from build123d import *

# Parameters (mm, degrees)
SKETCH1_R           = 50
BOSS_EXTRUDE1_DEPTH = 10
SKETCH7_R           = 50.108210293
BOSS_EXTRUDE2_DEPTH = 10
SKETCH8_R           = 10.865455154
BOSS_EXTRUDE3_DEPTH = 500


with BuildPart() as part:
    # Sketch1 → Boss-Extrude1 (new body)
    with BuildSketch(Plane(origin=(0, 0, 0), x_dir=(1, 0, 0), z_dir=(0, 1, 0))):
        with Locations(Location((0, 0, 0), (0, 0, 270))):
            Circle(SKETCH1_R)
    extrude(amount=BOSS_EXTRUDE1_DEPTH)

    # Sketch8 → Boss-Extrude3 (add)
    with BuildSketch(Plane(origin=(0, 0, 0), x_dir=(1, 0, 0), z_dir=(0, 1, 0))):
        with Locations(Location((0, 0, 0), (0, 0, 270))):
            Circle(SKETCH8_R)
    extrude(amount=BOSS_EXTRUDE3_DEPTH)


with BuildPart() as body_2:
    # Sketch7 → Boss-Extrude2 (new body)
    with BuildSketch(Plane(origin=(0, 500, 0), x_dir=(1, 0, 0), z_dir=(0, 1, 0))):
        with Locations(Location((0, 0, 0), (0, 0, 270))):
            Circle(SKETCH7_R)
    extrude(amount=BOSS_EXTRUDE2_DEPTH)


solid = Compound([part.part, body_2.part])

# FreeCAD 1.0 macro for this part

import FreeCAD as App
import Part
import Sketcher
from FreeCAD import Vector

doc = App.newDocument("Part")
body = doc.addObject("PartDesign::Body", "Body")

# Sketch on XZ plane
sketch1 = doc.addObject("Sketcher::SketchObject", "Sketch")
body.addObject(sketch1)
sketch1.AttachmentSupport = (doc.XZ_Plane, [""])
sketch1.MapMode = "FlatFace"
sketch1.addGeometry(Part.Circle(Vector(0, 0, 0), Vector(0, 0, 1), 50), False)
sketch1.addConstraint([
    Sketcher.Constraint("Coincident", 0, 3, -1, 1),
    Sketcher.Constraint("Diameter", 0, 100.0),
])
pad1 = doc.addObject("PartDesign::Pad", "Pad")
body.addObject(pad1)
pad1.Profile = sketch1
pad1.Length = 10
pad1.Reversed = True

# Sketch on XZ plane
sketch2 = doc.addObject("Sketcher::SketchObject", "Sketch001")
body.addObject(sketch2)
sketch2.AttachmentSupport = (doc.XZ_Plane, [""])
sketch2.MapMode = "FlatFace"
sketch2.addGeometry(Part.Circle(Vector(0, 0, 0), Vector(0, 0, 1), 11), False)
sketch2.addConstraint([
    Sketcher.Constraint("Coincident", 0, 3, -1, 1),
    Sketcher.Constraint("Diameter", 0, 21.73091),
])
pad2 = doc.addObject("PartDesign::Pad", "Pad001")
body.addObject(pad2)
pad2.Profile = sketch2
pad2.Length = 500
pad2.Reversed = True
body2 = doc.addObject("PartDesign::Body", "Body001")

# Sketch on XZ plane
sketch3 = doc.addObject("Sketcher::SketchObject", "Sketch002")
body2.addObject(sketch3)
sketch3.AttachmentSupport = (doc.getObject("XZ_Plane001"), [""])
sketch3.MapMode = "FlatFace"
sketch3.AttachmentOffset = App.Placement(Vector(0, 0, -500), App.Rotation())
sketch3.addGeometry(Part.Circle(Vector(0, 0, 0), Vector(0, 0, 1), 50), False)
sketch3.addConstraint([
    Sketcher.Constraint("Coincident", 0, 3, -1, 1),
    Sketcher.Constraint("Diameter", 0, 100.216421),
])
pad3 = doc.addObject("PartDesign::Pad", "Pad002")
body2.addObject(pad3)
pad3.Profile = sketch3
pad3.Length = 10
pad3.Reversed = True

doc.recompute()
